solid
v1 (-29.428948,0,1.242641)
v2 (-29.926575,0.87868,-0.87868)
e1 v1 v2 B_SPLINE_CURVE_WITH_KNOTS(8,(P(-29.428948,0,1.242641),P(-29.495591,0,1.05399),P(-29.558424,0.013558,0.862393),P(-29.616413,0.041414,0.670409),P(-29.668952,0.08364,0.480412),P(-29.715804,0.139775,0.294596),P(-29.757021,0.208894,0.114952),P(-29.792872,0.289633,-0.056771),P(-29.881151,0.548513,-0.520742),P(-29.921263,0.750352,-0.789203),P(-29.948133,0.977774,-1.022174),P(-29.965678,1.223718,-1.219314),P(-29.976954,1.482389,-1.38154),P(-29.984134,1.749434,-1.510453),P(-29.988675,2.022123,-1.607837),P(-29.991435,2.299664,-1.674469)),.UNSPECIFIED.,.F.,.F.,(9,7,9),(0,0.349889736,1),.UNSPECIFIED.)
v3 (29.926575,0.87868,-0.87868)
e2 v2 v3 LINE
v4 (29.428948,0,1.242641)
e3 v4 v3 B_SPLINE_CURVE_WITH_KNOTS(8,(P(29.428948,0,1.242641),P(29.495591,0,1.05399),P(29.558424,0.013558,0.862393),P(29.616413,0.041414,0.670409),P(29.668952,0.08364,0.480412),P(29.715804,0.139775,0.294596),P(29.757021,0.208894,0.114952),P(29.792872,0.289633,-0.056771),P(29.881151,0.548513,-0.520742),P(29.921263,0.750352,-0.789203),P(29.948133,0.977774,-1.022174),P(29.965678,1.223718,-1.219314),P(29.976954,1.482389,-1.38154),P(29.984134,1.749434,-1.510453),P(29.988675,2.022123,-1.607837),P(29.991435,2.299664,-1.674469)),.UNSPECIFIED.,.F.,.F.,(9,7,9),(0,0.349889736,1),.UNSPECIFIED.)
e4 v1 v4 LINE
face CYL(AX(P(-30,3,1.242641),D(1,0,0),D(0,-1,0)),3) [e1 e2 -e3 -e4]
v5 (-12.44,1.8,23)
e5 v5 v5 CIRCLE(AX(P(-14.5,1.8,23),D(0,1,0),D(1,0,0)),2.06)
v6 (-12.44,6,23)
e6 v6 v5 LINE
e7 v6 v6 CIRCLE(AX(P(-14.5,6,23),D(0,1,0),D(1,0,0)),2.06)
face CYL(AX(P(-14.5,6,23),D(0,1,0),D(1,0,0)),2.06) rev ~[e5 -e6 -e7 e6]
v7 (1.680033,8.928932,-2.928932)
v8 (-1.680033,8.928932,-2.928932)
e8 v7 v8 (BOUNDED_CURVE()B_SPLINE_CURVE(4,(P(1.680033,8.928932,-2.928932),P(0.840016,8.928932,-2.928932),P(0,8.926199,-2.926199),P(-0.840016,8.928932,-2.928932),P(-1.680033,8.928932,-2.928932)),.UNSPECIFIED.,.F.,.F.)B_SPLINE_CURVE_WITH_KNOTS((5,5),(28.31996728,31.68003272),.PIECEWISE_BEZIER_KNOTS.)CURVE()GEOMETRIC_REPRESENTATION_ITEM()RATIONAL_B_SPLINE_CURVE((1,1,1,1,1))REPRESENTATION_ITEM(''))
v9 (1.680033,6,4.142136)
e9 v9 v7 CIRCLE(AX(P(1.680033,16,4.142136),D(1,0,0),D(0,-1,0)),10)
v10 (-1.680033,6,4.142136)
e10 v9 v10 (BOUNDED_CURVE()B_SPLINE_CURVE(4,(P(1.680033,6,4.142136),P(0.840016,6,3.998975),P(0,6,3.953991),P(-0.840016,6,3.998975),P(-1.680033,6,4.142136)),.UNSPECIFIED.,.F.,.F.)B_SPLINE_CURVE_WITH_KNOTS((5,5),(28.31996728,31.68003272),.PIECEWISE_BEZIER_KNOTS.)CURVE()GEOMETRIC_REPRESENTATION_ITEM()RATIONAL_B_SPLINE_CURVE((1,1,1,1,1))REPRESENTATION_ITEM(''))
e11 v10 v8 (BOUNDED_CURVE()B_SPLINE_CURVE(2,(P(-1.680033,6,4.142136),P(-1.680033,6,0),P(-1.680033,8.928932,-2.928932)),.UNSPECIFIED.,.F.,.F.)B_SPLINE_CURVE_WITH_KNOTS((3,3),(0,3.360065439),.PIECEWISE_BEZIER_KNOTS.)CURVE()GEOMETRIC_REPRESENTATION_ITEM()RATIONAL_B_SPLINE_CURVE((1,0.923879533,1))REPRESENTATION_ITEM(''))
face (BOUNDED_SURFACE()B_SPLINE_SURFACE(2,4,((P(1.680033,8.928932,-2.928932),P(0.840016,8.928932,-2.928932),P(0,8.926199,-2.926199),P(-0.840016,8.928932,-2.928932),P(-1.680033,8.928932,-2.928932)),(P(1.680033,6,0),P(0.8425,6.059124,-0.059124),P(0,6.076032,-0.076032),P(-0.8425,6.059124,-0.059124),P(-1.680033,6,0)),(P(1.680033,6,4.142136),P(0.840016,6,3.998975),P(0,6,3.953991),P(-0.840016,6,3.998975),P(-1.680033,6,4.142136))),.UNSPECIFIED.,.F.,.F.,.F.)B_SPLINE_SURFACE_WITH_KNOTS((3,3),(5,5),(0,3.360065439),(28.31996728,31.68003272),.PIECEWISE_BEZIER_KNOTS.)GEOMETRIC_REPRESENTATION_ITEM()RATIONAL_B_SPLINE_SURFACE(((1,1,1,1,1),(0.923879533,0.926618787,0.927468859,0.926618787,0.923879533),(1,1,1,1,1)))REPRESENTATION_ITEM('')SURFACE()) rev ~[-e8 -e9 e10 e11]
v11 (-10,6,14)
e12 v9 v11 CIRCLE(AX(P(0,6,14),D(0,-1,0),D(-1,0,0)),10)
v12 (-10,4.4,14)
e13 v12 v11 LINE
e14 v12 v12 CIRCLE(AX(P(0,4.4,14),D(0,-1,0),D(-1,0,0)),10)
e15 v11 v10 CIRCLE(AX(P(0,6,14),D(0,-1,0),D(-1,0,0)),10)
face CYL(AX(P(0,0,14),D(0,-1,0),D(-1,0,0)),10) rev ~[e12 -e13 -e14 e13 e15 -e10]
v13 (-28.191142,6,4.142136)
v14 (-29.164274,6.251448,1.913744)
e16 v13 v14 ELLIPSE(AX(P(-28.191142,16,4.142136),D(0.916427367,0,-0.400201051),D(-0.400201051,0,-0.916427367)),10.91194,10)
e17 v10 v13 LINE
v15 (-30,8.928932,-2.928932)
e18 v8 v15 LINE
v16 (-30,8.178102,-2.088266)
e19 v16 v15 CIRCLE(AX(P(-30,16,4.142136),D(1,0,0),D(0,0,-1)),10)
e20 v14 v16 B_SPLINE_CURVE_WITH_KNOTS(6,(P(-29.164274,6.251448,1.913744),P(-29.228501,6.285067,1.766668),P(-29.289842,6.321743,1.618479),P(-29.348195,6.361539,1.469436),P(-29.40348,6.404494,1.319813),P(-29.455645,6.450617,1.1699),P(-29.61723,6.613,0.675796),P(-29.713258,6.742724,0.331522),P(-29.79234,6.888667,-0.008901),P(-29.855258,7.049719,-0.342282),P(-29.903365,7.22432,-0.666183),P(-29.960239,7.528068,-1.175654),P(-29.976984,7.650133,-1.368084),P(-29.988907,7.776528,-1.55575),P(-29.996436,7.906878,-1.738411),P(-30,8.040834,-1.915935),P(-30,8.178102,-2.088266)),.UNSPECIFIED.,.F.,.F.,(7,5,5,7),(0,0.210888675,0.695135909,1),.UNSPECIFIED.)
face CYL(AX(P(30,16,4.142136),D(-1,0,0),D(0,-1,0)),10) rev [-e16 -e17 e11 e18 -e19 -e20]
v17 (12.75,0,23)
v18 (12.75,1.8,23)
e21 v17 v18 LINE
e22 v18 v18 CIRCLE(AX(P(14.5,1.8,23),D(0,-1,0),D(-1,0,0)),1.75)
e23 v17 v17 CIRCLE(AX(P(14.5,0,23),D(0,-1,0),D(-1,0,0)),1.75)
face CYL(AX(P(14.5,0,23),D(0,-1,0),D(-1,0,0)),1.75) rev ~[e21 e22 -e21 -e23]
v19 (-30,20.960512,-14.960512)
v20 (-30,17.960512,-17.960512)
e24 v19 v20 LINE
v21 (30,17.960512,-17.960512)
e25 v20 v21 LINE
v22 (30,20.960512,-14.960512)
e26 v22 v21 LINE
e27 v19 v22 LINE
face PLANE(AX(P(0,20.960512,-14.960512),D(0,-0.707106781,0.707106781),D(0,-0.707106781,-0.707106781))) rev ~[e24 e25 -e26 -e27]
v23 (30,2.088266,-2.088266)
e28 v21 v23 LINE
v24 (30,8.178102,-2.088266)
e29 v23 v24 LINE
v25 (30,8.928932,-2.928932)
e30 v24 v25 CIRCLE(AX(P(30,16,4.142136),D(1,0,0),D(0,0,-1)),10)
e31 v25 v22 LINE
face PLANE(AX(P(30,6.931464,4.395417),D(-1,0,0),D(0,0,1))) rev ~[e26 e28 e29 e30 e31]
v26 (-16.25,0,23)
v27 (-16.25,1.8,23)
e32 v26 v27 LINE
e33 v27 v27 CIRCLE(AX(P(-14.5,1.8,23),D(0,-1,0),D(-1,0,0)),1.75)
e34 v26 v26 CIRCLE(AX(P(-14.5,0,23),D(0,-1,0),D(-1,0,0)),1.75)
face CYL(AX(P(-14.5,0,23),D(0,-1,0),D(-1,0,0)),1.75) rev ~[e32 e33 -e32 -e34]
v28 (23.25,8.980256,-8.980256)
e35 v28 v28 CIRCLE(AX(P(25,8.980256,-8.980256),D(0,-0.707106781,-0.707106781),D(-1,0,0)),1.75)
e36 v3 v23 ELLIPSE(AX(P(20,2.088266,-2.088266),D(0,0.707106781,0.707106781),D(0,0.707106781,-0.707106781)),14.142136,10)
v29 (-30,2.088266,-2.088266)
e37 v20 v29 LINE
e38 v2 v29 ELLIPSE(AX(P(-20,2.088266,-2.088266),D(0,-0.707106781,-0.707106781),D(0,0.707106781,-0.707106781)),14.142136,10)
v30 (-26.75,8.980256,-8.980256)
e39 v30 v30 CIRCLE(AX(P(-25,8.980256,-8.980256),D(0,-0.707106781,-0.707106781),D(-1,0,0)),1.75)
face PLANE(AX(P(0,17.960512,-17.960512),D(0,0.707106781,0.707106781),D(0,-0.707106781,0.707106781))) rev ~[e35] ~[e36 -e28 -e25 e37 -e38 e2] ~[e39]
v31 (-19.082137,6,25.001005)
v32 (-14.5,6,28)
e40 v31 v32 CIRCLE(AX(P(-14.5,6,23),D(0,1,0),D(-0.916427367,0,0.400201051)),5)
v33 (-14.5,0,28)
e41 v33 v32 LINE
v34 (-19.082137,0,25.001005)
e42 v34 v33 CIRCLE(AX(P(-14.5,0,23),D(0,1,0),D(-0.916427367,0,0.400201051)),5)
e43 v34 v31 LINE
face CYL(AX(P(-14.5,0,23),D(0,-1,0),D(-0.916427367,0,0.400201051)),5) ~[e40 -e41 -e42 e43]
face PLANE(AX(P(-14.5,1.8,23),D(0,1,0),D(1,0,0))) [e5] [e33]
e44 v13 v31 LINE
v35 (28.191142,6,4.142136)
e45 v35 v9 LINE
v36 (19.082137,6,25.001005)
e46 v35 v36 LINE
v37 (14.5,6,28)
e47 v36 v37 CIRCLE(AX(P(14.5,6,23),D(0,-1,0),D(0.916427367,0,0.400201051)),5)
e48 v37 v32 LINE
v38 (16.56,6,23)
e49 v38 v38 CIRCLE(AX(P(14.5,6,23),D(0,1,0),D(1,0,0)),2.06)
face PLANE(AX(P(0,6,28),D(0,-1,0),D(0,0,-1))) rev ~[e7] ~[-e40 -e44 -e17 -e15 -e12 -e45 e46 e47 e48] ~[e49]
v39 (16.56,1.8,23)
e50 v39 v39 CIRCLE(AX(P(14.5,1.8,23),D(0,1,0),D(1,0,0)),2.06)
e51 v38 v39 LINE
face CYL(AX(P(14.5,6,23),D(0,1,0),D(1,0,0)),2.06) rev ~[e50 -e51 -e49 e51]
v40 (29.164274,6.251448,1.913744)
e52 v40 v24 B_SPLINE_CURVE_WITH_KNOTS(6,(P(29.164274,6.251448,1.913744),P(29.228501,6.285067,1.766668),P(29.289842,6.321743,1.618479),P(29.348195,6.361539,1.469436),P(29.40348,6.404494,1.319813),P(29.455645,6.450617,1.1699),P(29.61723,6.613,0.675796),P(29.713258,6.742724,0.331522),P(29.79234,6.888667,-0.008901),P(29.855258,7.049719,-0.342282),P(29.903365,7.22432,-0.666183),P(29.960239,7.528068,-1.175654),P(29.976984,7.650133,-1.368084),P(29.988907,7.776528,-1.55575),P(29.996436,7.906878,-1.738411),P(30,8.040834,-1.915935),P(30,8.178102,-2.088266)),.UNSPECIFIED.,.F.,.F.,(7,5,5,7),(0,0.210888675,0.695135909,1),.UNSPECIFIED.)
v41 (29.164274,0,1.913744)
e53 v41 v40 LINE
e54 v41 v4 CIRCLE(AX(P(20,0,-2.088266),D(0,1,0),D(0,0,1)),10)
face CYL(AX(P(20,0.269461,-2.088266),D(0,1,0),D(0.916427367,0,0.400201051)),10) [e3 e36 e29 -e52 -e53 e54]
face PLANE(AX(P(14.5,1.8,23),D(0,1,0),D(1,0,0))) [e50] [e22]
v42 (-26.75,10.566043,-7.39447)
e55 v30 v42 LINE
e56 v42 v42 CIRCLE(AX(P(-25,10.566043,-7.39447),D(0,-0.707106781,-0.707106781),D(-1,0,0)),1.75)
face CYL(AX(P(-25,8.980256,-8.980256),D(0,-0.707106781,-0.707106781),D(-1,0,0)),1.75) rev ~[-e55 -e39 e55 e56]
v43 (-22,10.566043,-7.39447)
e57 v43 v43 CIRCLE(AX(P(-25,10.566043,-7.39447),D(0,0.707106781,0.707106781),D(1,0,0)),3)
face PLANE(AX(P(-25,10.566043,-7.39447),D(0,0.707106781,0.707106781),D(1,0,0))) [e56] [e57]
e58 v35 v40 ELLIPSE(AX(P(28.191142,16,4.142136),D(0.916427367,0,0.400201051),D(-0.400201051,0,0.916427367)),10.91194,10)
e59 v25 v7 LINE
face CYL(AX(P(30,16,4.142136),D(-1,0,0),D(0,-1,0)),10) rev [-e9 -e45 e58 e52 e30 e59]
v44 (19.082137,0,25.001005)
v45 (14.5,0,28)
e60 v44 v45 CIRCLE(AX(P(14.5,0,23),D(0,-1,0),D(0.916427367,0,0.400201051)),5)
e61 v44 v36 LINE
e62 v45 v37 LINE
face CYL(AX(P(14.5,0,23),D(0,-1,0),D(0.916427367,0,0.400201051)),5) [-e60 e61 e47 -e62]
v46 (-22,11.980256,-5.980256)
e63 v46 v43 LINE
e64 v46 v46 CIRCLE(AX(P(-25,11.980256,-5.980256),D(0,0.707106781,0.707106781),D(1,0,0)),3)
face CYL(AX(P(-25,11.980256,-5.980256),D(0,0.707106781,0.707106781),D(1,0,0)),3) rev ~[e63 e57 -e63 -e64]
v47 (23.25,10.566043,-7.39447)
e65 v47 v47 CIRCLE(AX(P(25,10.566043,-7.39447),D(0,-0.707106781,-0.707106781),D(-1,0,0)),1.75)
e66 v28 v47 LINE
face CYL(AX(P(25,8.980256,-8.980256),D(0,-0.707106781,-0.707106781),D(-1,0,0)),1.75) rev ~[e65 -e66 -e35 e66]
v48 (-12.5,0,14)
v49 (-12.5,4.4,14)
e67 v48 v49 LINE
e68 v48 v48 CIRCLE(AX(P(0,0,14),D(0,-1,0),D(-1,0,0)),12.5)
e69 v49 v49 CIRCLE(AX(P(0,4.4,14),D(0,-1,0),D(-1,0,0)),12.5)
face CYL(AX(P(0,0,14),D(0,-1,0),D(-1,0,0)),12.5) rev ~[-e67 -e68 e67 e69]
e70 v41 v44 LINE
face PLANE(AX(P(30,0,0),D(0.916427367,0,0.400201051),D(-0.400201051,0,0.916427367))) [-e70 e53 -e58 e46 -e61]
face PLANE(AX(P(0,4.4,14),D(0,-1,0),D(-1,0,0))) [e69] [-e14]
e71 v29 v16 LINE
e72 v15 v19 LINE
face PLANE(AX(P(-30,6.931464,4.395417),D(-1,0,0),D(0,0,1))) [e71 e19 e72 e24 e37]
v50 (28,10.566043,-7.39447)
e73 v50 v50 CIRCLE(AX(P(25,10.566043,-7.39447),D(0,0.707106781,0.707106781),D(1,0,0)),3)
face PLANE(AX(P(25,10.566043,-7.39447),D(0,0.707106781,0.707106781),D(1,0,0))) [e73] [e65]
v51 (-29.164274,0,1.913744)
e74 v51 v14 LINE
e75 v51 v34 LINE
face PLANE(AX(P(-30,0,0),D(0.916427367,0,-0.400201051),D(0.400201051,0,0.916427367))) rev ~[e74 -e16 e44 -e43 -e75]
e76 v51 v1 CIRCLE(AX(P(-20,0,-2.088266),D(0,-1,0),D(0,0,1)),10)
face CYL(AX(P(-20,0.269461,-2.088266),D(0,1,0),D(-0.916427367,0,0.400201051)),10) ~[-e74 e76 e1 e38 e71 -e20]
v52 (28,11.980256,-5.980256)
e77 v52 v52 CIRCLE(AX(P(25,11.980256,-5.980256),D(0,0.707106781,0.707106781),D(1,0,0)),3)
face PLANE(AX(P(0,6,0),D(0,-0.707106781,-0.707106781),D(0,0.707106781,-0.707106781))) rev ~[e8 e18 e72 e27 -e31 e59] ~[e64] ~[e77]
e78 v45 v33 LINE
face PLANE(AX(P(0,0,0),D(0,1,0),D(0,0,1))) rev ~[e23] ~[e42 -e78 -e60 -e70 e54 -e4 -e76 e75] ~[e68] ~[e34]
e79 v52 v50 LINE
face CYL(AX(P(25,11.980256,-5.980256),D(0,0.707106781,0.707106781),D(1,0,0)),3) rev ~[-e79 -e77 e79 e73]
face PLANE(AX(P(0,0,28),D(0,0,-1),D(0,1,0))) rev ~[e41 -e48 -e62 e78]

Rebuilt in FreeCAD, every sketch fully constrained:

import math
import FreeCAD as App
import Part
import Sketcher
from FreeCAD import Vector
Q = App.Units.Quantity


def edges_at(feature, points):
    """Names of the edges that pass closest to the given points."""
    edges = feature.Shape.Edges
    near = lambda p: min(range(len(edges)), key=lambda i: edges[i].distToShape(Part.Vertex(*p))[0])
    return sorted({f"Edge{near(p) + 1}" for p in points})


def add_polygon(sketch, points):
    """Adds a closed chain of lines whose ends are joined by coincident constraints."""
    first, n = sketch.GeometryCount, len(points)
    for a, b in zip(points, points[1:] + points[:1]):
        sketch.addGeometry(Part.LineSegment(App.Vector(*a, 0), App.Vector(*b, 0)), False)
    for i in range(n):
        sketch.addConstraint(Sketcher.Constraint("Coincident", first + i, 2, first + (i + 1) % n, 1))

doc = App.newDocument("Part")
body = doc.addObject("PartDesign::Body", "Body")

# Sketch on YZ plane
sketch1 = body.newObject("Sketcher::SketchObject", "Sketch")
sketch1.AttachmentSupport = (doc.getObject("YZ_Plane"), [""])
sketch1.MapMode = "FlatFace"
add_polygon(sketch1, [(0, 28), (0, 0), (18, -18), (21, -15), (6, 0), (6, 28)])  # lines 0-5
sketch1.addConstraint([
    Sketcher.Constraint("Vertical", 0),
    Sketcher.Constraint("Vertical", 4),
    Sketcher.Constraint("Horizontal", 5),
    Sketcher.Constraint("Coincident", 0, 2, -1, 1),
    Sketcher.Constraint("PointOnObject", 3, 2, -1),
    Sketcher.Constraint("Perpendicular", 1, 2),
    Sketcher.Constraint("Perpendicular", 2, 3),
    Sketcher.Constraint("DistanceX", 5, 2, 5, 1, Q("6 mm")),
    Sketcher.Constraint("DistanceY", 0, 2, 0, 1, Q("28 mm")),
    Sketcher.Constraint("Angle", 1, Q("-45 deg")),
    Sketcher.Constraint("Distance", 1, Q("25.4 mm")),
])
pad1 = body.newObject("PartDesign::Pad", "Pad")
pad1.Profile = sketch1
pad1.Type = "TwoLengths"
pad1.Length = 30
pad1.Length2 = 30

# Sketch on an angled plane
sketch2 = body.newObject("Sketcher::SketchObject", "Sketch001")
sketch2.Placement = App.Placement(Vector(0, 0, 0), App.Rotation(Vector(-1, 0, 0), Vector(0, 0.707106781, -0.707106781), Vector(0, -0.707106781, -0.707106781), "ZXY"))
sketch2.addGeometry([
    Part.Circle(Vector(-25, 12.7, 0), Vector(0, 0, 1), 1.8),
    Part.Circle(Vector(25, 12.7, 0), Vector(0, 0, 1), 1.8),
], False)
sketch2.addConstraint([
    Sketcher.Constraint("Equal", 0, 1),
    Sketcher.Constraint("Symmetric", 0, 3, 1, 3, -2),
    Sketcher.Constraint("Diameter", 0, Q("3.5 mm")),
    Sketcher.Constraint("DistanceX", 0, 3, -1, 1, Q("25 mm")),
    Sketcher.Constraint("DistanceY", -1, 1, 0, 3, Q("12.7 mm")),
])
pocket1 = body.newObject("PartDesign::Pocket", "Pocket")
pocket1.Profile = sketch2
pocket1.Length = 4.242641

# Sketch on an angled plane
sketch3 = body.newObject("Sketcher::SketchObject", "Sketch002")
sketch3.Placement = App.Placement(Vector(0, 3, 3), App.Rotation(Vector(1, 0, 0), Vector(0, 0.707106781, -0.707106781), Vector(0, 0.707106781, 0.707106781), "ZXY"))
sketch3.addGeometry([
    Part.Circle(Vector(-25, 12.7, 0), Vector(0, 0, 1), 3),
    Part.Circle(Vector(25, 12.7, 0), Vector(0, 0, 1), 3),
], False)
sketch3.addConstraint([
    Sketcher.Constraint("Equal", 0, 1),
    Sketcher.Constraint("Symmetric", 0, 3, 1, 3, -2),
    Sketcher.Constraint("Diameter", 0, Q("6 mm")),
    Sketcher.Constraint("DistanceX", 0, 3, -1, 1, Q("25 mm")),
    Sketcher.Constraint("DistanceY", -1, 1, 0, 3, Q("12.7 mm")),
])
pocket2 = body.newObject("PartDesign::Pocket", "Pocket001")
pocket2.Profile = sketch3
pocket2.Length = 2

# Sketch on XZ plane
sketch4 = body.newObject("Sketcher::SketchObject", "Sketch003")
sketch4.AttachmentSupport = (doc.getObject("XZ_Plane"), [""])
sketch4.MapMode = "FlatFace"
sketch4.addGeometry([
    Part.Circle(Vector(0, 14, 0), Vector(0, 0, 1), 10),  # 0
    Part.Circle(Vector(-14.5, 23, 0), Vector(0, 0, 1), 1.8),  # 1
    Part.Circle(Vector(14.5, 23, 0), Vector(0, 0, 1), 1.8),  # 2
    Part.ArcOfCircle(Part.Circle(Vector(14.5, 23, 0), Vector(0, 0, 1), 5), math.radians(24), math.radians(90)),  # 3
    Part.LineSegment(Vector(19.1, 25, 0), Vector(30, 0, 0)),  # 4
    Part.LineSegment(Vector(30, 0, 0), Vector(30, 28, 0)),  # 5
    Part.LineSegment(Vector(30, 28, 0), Vector(14.5, 28, 0)),  # 6
    Part.LineSegment(Vector(-30, 0, 0), Vector(-19.1, 25, 0)),  # 7
    Part.ArcOfCircle(Part.Circle(Vector(-14.5, 23, 0), Vector(0, 0, 1), 5), math.radians(90), math.radians(156)),  # 8
    Part.LineSegment(Vector(-14.5, 28, 0), Vector(-30, 28, 0)),  # 9
    Part.LineSegment(Vector(-30, 28, 0), Vector(-30, 0, 0)),  # 10
], False)
sketch4.addConstraint([
    Sketcher.Constraint("Tangent", 3, 1, 4, 1),
    Sketcher.Constraint("Coincident", 4, 2, 5, 1),
    Sketcher.Constraint("Coincident", 5, 2, 6, 1),
    Sketcher.Constraint("Tangent", 6, 2, 3, 2),
    Sketcher.Constraint("Tangent", 7, 2, 8, 2),
    Sketcher.Constraint("Tangent", 8, 1, 9, 1),
    Sketcher.Constraint("Coincident", 9, 2, 10, 1),
    Sketcher.Constraint("Coincident", 10, 2, 7, 1),
    Sketcher.Constraint("Vertical", 5),
    Sketcher.Constraint("Horizontal", 6),
    Sketcher.Constraint("Horizontal", 9),
    Sketcher.Constraint("Vertical", 10),
    Sketcher.Constraint("Coincident", 3, 3, 2, 3),
    Sketcher.Constraint("Coincident", 8, 3, 1, 3),
    Sketcher.Constraint("Equal", 1, 2),
    Sketcher.Constraint("Equal", 3, 8),
    Sketcher.Constraint("Symmetric", 4, 2, 10, 2, -1, 1),
    Sketcher.Constraint("Symmetric", 1, 3, 2, 3, -2),
    Sketcher.Constraint("PointOnObject", 0, 3, -2),
    Sketcher.Constraint("PointOnObject", 4, 2, -1),
    Sketcher.Constraint("Diameter", 0, Q("20 mm")),
    Sketcher.Constraint("Radius", 3, Q("5 mm")),
    Sketcher.Constraint("Diameter", 1, Q("3.5 mm")),
    Sketcher.Constraint("DistanceY", 5, 1, 5, 2, Q("28 mm")),
    Sketcher.Constraint("DistanceX", 6, 2, 6, 1, Q("15.5 mm")),
    Sketcher.Constraint("DistanceY", -1, 1, 0, 3, Q("14 mm")),
    Sketcher.Constraint("DistanceX", -1, 1, 4, 2, Q("30 mm")),
])
pocket3 = body.newObject("PartDesign::Pocket", "Pocket002")
pocket3.Profile = sketch4
pocket3.Length = 6

# Sketch on XZ plane
sketch5 = body.newObject("Sketcher::SketchObject", "Sketch004")
sketch5.AttachmentSupport = (doc.getObject("XZ_Plane"), [""])
sketch5.MapMode = "FlatFace"
sketch5.addGeometry([
    Part.Circle(Vector(0, 14, 0), Vector(0, 0, 1), 12),
    Part.Circle(Vector(0, 14, 0), Vector(0, 0, 1), 10),
], False)
sketch5.addConstraint([
    Sketcher.Constraint("Coincident", 1, 3, 0, 3),
    Sketcher.Constraint("PointOnObject", 0, 3, -2),
    Sketcher.Constraint("Diameter", 0, Q("25 mm")),
    Sketcher.Constraint("Diameter", 1, Q("20 mm")),
    Sketcher.Constraint("DistanceY", -1, 1, 0, 3, Q("14 mm")),
])
pocket4 = body.newObject("PartDesign::Pocket", "Pocket003")
pocket4.Profile = sketch5
pocket4.Length = 4.4
doc.recompute()

fillet = body.newObject("PartDesign::Fillet", "Fillet")
fillet.Base = (pocket4, edges_at(pocket4, [(0, 6, 0)]))
fillet.Radius = 10
doc.recompute()

fillet2 = body.newObject("PartDesign::Fillet", "Fillet001")
fillet2.Base = (fillet, edges_at(fillet, [(0, 0, 0)]))
fillet2.Radius = 3
doc.recompute()

fillet3 = body.newObject("PartDesign::Fillet", "Fillet002")
fillet3.Base = (fillet2, edges_at(fillet2, [(-30, 3.584, 0), (30, 3.584, 0)]))
fillet3.Radius = 10

# Sketch on XZ plane
sketch6 = body.newObject("Sketcher::SketchObject", "Sketch005")
sketch6.AttachmentSupport = (doc.getObject("XZ_Plane"), [""])
sketch6.MapMode = "FlatFace"
sketch6.AttachmentOffset = App.Placement(Vector(0, 0, -6), App.Rotation())
sketch6.addGeometry([
    Part.Circle(Vector(-14.5, 23, 0), Vector(0, 0, 1), 2.1),
    Part.Circle(Vector(14.5, 23, 0), Vector(0, 0, 1), 2.1),
], False)
sketch6.addConstraint([
    Sketcher.Constraint("Equal", 0, 1),
    Sketcher.Constraint("Symmetric", 0, 3, 1, 3, -2),
    Sketcher.Constraint("Diameter", 0, Q("4.12 mm")),
    Sketcher.Constraint("DistanceY", -1, 1, 0, 3, Q("23 mm")),
    Sketcher.Constraint("DistanceX", 0, 3, 1, 3, Q("29 mm")),
])
pocket5 = body.newObject("PartDesign::Pocket", "Pocket004")
pocket5.Profile = sketch6
pocket5.Length = 4.2
pocket5.Reversed = True

doc.recompute()
